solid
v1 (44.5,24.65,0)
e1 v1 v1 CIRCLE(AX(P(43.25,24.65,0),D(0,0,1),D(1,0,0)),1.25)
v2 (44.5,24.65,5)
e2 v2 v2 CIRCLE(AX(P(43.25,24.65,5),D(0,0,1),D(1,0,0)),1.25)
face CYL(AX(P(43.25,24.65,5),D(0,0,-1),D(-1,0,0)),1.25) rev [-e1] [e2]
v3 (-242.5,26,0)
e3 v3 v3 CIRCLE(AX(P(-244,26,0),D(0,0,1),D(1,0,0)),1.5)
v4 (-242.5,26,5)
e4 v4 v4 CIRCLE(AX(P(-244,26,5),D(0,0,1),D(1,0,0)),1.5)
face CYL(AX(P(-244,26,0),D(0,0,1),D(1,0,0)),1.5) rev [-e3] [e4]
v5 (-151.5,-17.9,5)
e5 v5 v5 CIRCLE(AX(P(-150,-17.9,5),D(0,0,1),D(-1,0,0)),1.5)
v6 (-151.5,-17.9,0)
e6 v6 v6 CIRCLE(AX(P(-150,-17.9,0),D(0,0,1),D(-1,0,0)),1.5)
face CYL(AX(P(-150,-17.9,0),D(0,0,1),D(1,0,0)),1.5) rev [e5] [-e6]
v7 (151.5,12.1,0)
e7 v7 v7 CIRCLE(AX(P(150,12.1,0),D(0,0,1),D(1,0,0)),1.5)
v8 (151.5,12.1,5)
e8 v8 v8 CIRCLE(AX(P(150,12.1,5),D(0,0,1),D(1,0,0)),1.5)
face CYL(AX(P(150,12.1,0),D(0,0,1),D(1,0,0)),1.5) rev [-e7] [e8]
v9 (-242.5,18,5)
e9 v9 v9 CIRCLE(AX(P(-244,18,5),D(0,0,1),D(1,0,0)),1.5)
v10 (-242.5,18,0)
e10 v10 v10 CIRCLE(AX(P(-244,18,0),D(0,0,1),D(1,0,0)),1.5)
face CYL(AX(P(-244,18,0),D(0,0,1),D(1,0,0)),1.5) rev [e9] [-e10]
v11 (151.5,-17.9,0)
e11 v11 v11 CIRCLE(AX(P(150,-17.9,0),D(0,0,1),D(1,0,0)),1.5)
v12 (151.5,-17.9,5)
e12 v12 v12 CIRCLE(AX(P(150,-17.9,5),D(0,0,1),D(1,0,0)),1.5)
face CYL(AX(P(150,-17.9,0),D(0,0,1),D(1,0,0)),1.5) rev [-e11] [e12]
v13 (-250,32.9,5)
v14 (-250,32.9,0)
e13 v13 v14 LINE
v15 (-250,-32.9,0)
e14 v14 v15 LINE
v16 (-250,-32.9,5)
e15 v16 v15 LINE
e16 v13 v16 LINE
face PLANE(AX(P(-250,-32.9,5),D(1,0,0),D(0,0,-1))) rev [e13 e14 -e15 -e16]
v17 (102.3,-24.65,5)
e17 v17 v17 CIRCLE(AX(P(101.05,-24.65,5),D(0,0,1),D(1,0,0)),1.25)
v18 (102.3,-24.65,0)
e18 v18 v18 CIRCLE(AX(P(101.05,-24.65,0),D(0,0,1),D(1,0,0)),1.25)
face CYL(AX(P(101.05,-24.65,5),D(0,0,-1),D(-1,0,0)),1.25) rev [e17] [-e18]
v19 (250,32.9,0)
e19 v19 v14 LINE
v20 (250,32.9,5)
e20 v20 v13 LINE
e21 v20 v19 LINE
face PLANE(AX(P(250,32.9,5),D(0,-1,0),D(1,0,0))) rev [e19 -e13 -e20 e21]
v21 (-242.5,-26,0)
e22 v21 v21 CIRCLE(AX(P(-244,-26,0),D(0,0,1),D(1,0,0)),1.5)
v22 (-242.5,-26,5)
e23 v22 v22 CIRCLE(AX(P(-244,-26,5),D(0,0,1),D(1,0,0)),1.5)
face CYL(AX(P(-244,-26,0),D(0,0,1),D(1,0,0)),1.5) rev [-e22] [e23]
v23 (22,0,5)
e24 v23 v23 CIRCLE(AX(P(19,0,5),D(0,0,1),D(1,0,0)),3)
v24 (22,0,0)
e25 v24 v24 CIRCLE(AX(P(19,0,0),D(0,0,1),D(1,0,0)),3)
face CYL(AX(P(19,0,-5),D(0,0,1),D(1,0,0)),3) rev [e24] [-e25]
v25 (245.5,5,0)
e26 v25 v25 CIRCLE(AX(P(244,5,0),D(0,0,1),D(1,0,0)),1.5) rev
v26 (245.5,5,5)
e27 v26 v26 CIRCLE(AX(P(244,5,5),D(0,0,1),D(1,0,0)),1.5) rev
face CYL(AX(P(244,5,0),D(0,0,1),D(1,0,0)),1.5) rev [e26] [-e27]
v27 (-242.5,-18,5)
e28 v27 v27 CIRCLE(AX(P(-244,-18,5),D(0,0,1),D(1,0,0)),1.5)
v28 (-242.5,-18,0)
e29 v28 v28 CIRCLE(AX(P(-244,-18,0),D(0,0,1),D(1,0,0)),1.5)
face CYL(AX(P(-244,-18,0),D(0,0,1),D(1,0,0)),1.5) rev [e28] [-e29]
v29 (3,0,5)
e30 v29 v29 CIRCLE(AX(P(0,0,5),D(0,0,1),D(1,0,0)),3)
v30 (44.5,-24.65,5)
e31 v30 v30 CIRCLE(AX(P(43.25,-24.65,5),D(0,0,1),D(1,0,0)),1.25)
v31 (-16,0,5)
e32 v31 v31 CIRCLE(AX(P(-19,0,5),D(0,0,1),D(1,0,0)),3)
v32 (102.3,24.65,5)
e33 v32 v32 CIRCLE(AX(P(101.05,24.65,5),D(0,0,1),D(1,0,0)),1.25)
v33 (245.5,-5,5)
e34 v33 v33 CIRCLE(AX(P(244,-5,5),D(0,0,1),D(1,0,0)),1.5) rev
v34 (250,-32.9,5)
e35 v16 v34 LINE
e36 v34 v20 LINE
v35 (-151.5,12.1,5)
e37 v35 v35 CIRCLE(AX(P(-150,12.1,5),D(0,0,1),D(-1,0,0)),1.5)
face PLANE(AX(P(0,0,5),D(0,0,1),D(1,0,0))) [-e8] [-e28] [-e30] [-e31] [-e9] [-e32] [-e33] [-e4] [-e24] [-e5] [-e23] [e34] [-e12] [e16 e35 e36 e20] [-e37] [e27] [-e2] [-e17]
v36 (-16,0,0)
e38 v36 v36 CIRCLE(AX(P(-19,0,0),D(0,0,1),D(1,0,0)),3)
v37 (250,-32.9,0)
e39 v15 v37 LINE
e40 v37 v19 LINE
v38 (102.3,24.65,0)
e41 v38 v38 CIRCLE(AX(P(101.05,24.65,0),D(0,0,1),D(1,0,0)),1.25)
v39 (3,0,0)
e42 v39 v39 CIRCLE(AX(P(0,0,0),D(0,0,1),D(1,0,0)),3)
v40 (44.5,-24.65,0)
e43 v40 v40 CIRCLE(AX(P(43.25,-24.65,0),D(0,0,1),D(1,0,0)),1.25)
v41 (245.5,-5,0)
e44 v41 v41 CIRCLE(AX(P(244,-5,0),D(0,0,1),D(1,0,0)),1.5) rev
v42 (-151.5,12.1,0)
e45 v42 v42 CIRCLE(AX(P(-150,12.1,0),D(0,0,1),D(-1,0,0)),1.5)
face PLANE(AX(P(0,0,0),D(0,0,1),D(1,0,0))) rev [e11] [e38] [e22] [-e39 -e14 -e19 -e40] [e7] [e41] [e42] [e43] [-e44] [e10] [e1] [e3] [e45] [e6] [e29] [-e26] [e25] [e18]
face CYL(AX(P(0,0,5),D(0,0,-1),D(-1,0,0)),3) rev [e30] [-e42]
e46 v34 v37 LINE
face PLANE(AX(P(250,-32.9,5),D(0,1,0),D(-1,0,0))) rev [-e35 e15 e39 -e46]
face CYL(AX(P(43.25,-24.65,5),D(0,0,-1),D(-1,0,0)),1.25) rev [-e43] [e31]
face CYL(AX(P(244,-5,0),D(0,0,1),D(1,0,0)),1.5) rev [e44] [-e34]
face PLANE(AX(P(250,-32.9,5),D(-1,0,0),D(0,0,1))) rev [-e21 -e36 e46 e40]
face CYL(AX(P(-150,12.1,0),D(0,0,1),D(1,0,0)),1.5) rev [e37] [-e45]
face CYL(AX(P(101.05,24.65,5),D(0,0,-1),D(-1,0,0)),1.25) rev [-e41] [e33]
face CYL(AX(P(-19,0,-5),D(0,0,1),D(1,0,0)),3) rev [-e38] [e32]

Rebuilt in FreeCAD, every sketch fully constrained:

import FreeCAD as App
import Part
import Sketcher

V = App.Vector

doc = App.newDocument("Part")
body = doc.addObject("PartDesign::Body", "Body")

sketch1 = body.newObject("Sketcher::SketchObject", "Sketch")
sketch1.AttachmentSupport = (doc.getObject("XY_Plane"), [""])
sketch1.MapMode = "FlatFace"
sketch1.addGeometry([
    Part.LineSegment(V(-250, 32.9, 0), V(-250, -32.9, 0)),
    Part.LineSegment(V(-250, -32.9, 0), V(250, -32.9, 0)),
    Part.LineSegment(V(250, -32.9, 0), V(250, 32.9, 0)),
    Part.LineSegment(V(250, 32.9, 0), V(-250, 32.9, 0)),
    Part.Circle(V(43.25, -24.65, 0), V(0, 0, 1), 1.25),
    Part.Circle(V(0, 0, 0), V(0, 0, 1), 3),
    Part.Circle(V(101.05, -24.65, 0), V(0, 0, 1), 1.25),
    Part.Circle(V(43.25, 24.65, 0), V(0, 0, 1), 1.25),
    Part.Circle(V(101.05, 24.65, 0), V(0, 0, 1), 1.25),
], False)
sketch1.addConstraint([
    Sketcher.Constraint("Coincident", 0, 2, 1, 1),
    Sketcher.Constraint("Coincident", 1, 2, 2, 1),
    Sketcher.Constraint("Coincident", 2, 2, 3, 1),
    Sketcher.Constraint("Coincident", 3, 2, 0, 1),
    Sketcher.Constraint("Vertical", 0),
    Sketcher.Constraint("Horizontal", 1),
    Sketcher.Constraint("Vertical", 2),
    Sketcher.Constraint("Horizontal", 3),
    Sketcher.Constraint("Coincident", 5, 3, -1, 1),
    Sketcher.Constraint("Equal", 4, 6),
    Sketcher.Constraint("Equal", 6, 7),
    Sketcher.Constraint("Equal", 7, 8),
    Sketcher.Constraint("Symmetric", 0, 2, 2, 2, -1, 1),
    Sketcher.Constraint("Symmetric", 4, 3, 7, 3, -1),
    Sketcher.Constraint("Symmetric", 6, 3, 8, 3, -1),
    Sketcher.Constraint("Horizontal", 4, 3, 6, 3),
    Sketcher.Constraint("Diameter", 5, 6.0),
    Sketcher.Constraint("Diameter", 4, 2.5),
    Sketcher.Constraint("DistanceX", 1, 1, 1, 2, 500.0),
    Sketcher.Constraint("DistanceY", 0, 2, 0, 1, 65.8),
    Sketcher.Constraint("DistanceX", 4, 3, 6, 3, 57.8),
    Sketcher.Constraint("DistanceY", 4, 3, 7, 3, 49.3),
    Sketcher.Constraint("DistanceX", -1, 1, 4, 3, 43.25),
])
pad1 = body.newObject("PartDesign::Pad", "Pad")
pad1.Profile = sketch1
pad1.Length = 5

sketch2 = body.newObject("Sketcher::SketchObject", "Sketch001")
sketch2.AttachmentSupport = (doc.getObject("XY_Plane"), [""])
sketch2.MapMode = "FlatFace"
sketch2.AttachmentOffset = App.Placement(V(0, 0, 5), App.Rotation())
sketch2.addGeometry([
    Part.Circle(V(150, 12.1, 0), V(0, 0, 1), 1.5),
    Part.Circle(V(150, -17.9, 0), V(0, 0, 1), 1.5),
    Part.Circle(V(-150, -17.9, 0), V(0, 0, 1), 1.5),
    Part.Circle(V(-150, 12.1, 0), V(0, 0, 1), 1.5),
], False)
sketch2.addConstraint([
    Sketcher.Constraint("Equal", 0, 1),
    Sketcher.Constraint("Equal", 1, 2),
    Sketcher.Constraint("Equal", 2, 3),
    Sketcher.Constraint("Symmetric", 1, 3, 2, 3, -2),
    Sketcher.Constraint("Symmetric", 0, 3, 3, 3, -2),
    Sketcher.Constraint("Vertical", 0, 3, 1, 3),
    Sketcher.Constraint("Diameter", 0, 3.0),
    Sketcher.Constraint("DistanceX", -1, 1, 0, 3, 150.0),
    Sketcher.Constraint("DistanceY", 1, 3, 0, 3, 30.0),
    Sketcher.Constraint("DistanceY", -1, 1, 0, 3, 12.1),
])
pocket1 = body.newObject("PartDesign::Pocket", "Pocket")
pocket1.Profile = sketch2
pocket1.Length = 5

sketch3 = body.newObject("Sketcher::SketchObject", "Sketch002")
sketch3.AttachmentSupport = (doc.getObject("XY_Plane"), [""])
sketch3.MapMode = "FlatFace"
sketch3.AttachmentOffset = App.Placement(V(0, 0, 5), App.Rotation())
sketch3.addGeometry([
    Part.Circle(V(-244, 26, 0), V(0, 0, 1), 1.5),
    Part.Circle(V(244, -5, 0), V(0, 0, 1), 1.5),
    Part.Circle(V(244, 5, 0), V(0, 0, 1), 1.5),
    Part.Circle(V(-244, 18, 0), V(0, 0, 1), 1.5),
    Part.Circle(V(-244, -18, 0), V(0, 0, 1), 1.5),
    Part.Circle(V(-244, -26, 0), V(0, 0, 1), 1.5),
], False)
sketch3.addConstraint([
    Sketcher.Constraint("Equal", 0, 1),
    Sketcher.Constraint("Equal", 1, 2),
    Sketcher.Constraint("Equal", 2, 3),
    Sketcher.Constraint("Equal", 3, 4),
    Sketcher.Constraint("Equal", 4, 5),
    Sketcher.Constraint("Symmetric", 1, 3, 2, 3, -1),
    Sketcher.Constraint("Symmetric", 3, 3, 4, 3, -1),
    Sketcher.Constraint("Symmetric", 0, 3, 5, 3, -1),
    Sketcher.Constraint("Vertical", 0, 3, 3, 3),
    Sketcher.Constraint("Diameter", 0, 3.0),
    Sketcher.Constraint("DistanceX", 0, 3, -1, 1, 244.0),
    Sketcher.Constraint("DistanceY", -1, 1, 0, 3, 26.0),
    Sketcher.Constraint("DistanceX", -1, 1, 1, 3, 244.0),
    Sketcher.Constraint("DistanceY", 1, 3, -1, 1, 5.0),
    Sketcher.Constraint("DistanceY", -1, 1, 3, 3, 18.0),
])
pocket2 = body.newObject("PartDesign::Pocket", "Pocket001")
pocket2.Profile = sketch3
pocket2.Length = 5

sketch4 = body.newObject("Sketcher::SketchObject", "Sketch003")
sketch4.AttachmentSupport = (doc.getObject("XY_Plane"), [""])
sketch4.MapMode = "FlatFace"
sketch4.AttachmentOffset = App.Placement(V(0, 0, 5), App.Rotation())
sketch4.addGeometry([
    Part.Circle(V(19, 0, 0), V(0, 0, 1), 3),
    Part.Circle(V(-19, 0, 0), V(0, 0, 1), 3),
], False)
sketch4.addConstraint([
    Sketcher.Constraint("Equal", 0, 1),
    Sketcher.Constraint("Symmetric", 0, 3, 1, 3, -1, 1),
    Sketcher.Constraint("PointOnObject", 0, 3, -1),
    Sketcher.Constraint("Diameter", 0, 6.0),
    Sketcher.Constraint("DistanceX", -1, 1, 0, 3, 19.0),
])
pocket3 = body.newObject("PartDesign::Pocket", "Pocket002")
pocket3.Profile = sketch4
pocket3.Length = 10

doc.recompute()
